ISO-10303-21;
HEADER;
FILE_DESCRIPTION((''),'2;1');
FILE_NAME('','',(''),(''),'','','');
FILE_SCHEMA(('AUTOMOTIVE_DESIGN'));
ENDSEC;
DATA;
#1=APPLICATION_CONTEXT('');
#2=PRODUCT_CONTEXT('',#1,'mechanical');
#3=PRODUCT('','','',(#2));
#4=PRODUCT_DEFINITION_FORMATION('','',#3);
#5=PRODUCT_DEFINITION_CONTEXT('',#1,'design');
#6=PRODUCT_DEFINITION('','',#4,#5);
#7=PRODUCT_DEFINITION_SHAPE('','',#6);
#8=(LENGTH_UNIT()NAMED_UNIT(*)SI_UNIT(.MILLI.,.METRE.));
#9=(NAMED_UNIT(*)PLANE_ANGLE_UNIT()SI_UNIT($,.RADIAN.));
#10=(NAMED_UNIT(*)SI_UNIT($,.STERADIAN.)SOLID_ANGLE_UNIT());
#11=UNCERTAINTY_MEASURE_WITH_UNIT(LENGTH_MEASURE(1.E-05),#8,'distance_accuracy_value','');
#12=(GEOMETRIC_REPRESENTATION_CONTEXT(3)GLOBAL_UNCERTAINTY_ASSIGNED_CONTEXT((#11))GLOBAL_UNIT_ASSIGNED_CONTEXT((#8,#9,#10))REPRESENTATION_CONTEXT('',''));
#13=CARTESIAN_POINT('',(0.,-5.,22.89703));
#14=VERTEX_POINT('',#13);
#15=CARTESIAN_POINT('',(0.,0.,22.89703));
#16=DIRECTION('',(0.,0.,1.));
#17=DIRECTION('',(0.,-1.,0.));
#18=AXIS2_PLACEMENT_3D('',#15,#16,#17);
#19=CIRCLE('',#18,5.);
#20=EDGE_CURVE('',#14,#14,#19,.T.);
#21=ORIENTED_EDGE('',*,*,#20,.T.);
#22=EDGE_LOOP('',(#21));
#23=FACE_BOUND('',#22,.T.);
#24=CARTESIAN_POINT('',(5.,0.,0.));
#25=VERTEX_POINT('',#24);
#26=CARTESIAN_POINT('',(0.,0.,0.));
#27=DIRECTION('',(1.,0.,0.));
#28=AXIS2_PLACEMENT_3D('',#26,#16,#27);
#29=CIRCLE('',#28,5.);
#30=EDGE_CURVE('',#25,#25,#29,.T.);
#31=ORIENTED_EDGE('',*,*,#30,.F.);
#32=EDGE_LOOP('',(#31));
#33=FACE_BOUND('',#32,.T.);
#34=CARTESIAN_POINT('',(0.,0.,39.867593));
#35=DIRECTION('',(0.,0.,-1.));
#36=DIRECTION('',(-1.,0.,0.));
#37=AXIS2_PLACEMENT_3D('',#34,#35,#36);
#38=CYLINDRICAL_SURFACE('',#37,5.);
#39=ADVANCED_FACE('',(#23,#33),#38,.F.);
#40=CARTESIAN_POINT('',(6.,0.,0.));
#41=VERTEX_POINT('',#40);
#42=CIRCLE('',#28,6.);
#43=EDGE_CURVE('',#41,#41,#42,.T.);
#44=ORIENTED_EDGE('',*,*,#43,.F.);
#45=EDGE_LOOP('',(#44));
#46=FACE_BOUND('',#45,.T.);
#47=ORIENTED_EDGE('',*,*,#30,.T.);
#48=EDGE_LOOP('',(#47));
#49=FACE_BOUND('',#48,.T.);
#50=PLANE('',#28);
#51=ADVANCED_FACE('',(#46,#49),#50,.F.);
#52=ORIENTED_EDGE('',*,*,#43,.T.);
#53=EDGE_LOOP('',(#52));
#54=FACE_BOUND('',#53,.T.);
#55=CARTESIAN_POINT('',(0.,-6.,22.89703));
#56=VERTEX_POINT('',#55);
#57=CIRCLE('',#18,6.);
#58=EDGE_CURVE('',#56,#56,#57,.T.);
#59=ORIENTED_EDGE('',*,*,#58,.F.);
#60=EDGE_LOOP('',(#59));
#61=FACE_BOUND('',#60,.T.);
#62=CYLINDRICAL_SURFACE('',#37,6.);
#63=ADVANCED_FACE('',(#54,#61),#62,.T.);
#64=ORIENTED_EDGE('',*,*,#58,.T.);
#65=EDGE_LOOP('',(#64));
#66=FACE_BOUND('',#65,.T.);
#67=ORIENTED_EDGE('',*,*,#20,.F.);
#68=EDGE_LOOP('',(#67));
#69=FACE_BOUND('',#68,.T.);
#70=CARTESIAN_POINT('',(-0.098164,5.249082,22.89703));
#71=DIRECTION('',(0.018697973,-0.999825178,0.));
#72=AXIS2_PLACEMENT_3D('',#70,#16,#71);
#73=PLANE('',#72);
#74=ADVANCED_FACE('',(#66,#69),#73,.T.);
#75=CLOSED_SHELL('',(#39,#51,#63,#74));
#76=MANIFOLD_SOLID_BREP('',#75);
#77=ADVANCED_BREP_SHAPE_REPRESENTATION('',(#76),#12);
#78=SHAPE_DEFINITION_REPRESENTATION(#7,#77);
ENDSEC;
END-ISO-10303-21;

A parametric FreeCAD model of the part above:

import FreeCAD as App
import Part
import Sketcher
Q = App.Units.Quantity

doc = App.newDocument("Part")
body = doc.addObject("PartDesign::Body", "Body")

# Sketch on XY plane
sketch1 = body.newObject("Sketcher::SketchObject", "Sketch")
sketch1.AttachmentSupport = (doc.getObject("XY_Plane"), [""])
sketch1.MapMode = "FlatFace"
sketch1.addGeometry([
    Part.Circle(App.Vector(0, 0, 0), App.Vector(0, 0, 1), 6),
    Part.Circle(App.Vector(0, 0, 0), App.Vector(0, 0, 1), 5),
], False)
sketch1.addConstraint([
    Sketcher.Constraint("Coincident", 0, 3, -1, 1),
    Sketcher.Constraint("Coincident", 1, 3, -1, 1),
    Sketcher.Constraint("Diameter", 0, Q("12 mm")),
    Sketcher.Constraint("Diameter", 1, Q("10 mm")),
])
pad1 = body.newObject("PartDesign::Pad", "Pad")
pad1.Profile = sketch1
pad1.Length = 22.89703

doc.recompute()
